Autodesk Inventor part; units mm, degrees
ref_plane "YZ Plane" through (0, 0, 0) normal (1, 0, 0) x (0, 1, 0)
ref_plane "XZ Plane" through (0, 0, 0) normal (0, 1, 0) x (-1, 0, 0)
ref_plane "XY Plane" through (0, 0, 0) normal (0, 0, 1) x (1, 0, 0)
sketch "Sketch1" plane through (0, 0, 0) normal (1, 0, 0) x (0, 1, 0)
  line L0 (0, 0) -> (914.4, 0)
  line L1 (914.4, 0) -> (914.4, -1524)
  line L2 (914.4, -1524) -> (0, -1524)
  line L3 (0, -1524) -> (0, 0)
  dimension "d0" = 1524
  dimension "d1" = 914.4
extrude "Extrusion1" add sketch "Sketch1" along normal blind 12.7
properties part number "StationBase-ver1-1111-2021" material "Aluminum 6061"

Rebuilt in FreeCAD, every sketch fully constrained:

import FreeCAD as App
import Part
import Sketcher

V = App.Vector
Q = App.Units.Quantity


def add_polygon(sketch, points):
    """Adds a closed chain of lines whose ends are joined by coincident constraints."""
    first, n = sketch.GeometryCount, len(points)
    for a, b in zip(points, points[1:] + points[:1]):
        sketch.addGeometry(Part.LineSegment(App.Vector(*a, 0), App.Vector(*b, 0)), False)
    for i in range(n):
        sketch.addConstraint(Sketcher.Constraint("Coincident", first + i, 2, first + (i + 1) % n, 1))

doc = App.newDocument("Part")
body = doc.addObject("PartDesign::Body", "Body")

# Sketch on YZ plane
sketch1 = body.newObject("Sketcher::SketchObject", "Sketch")
sketch1.AttachmentSupport = (doc.getObject("YZ_Plane"), [""])
sketch1.MapMode = "FlatFace"
add_polygon(sketch1, [(914, 0), (0, 0), (0, -1524), (914, -1524)])  # lines 0-3
sketch1.addConstraint([
    Sketcher.Constraint("Horizontal", 0),
    Sketcher.Constraint("Vertical", 1),
    Sketcher.Constraint("Horizontal", 2),
    Sketcher.Constraint("Vertical", 3),
    Sketcher.Constraint("Coincident", 0, 2, -1, 1),
    Sketcher.Constraint("DistanceX", 0, 2, 0, 1, Q("36 in")),
    Sketcher.Constraint("DistanceY", 1, 2, 1, 1, Q("60 in")),
])
pad1 = body.newObject("PartDesign::Pad", "Pad")
pad1.Profile = sketch1
pad1.Length = Q("0.5 in")

doc.recompute()
